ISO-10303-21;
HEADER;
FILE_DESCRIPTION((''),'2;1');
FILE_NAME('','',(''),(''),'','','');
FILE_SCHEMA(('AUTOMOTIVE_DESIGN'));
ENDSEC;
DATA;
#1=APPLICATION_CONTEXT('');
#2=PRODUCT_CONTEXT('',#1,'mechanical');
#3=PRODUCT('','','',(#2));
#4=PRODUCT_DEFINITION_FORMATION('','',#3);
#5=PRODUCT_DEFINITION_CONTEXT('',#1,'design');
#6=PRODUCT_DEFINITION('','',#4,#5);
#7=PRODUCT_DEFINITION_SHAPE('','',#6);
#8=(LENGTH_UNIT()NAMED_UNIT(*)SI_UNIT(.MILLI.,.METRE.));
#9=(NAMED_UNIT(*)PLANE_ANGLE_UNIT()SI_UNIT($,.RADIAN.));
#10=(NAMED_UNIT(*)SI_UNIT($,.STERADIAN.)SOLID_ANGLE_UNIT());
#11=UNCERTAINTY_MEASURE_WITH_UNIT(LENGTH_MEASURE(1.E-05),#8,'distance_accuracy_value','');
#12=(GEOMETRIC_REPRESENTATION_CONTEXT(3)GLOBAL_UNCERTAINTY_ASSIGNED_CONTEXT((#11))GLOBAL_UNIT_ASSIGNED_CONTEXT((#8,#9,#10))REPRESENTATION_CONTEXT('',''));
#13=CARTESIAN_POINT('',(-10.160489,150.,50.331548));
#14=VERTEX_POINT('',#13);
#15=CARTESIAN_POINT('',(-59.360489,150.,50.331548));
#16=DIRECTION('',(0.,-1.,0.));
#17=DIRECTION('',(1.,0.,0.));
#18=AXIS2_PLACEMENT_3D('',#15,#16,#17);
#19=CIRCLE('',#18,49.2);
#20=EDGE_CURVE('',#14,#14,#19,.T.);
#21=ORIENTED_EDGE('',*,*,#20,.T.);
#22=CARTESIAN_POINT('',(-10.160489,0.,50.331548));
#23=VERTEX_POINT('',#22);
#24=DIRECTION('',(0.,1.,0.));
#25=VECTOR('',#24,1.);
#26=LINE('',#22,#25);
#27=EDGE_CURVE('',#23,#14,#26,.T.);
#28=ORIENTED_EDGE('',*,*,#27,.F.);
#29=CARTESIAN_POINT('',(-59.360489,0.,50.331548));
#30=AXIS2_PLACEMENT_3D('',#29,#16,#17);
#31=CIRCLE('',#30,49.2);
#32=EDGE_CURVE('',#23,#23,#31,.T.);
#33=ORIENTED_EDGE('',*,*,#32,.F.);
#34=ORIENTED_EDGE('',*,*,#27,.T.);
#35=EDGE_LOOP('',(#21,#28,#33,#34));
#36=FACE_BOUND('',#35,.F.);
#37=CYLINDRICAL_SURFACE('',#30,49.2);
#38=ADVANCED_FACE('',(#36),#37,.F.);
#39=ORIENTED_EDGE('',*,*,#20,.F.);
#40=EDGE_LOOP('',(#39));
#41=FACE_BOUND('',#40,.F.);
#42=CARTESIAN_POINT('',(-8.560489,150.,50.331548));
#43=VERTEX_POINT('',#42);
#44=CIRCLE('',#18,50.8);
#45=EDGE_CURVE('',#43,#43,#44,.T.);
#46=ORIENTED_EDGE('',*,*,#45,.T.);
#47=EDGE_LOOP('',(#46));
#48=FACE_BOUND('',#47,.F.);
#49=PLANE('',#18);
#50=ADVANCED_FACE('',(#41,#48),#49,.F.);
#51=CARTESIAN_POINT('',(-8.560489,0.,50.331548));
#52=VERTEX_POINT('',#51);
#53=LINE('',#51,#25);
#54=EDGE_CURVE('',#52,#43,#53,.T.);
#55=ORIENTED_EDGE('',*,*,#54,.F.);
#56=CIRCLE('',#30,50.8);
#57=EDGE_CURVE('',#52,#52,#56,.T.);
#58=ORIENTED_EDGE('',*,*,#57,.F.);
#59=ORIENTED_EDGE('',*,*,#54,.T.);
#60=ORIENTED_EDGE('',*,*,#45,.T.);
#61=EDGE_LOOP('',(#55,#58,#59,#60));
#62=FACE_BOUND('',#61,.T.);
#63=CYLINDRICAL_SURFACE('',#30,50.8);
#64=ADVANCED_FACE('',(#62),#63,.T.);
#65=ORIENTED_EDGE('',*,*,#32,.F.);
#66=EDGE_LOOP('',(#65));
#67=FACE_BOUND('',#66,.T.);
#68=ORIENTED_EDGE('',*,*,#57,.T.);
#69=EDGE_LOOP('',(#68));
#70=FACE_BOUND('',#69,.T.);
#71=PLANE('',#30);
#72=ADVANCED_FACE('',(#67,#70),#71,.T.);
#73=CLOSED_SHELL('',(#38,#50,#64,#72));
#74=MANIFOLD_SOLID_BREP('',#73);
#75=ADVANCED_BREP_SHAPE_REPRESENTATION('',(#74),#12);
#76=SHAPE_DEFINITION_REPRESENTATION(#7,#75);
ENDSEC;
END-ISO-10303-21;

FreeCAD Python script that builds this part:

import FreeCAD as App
import Part
import Sketcher

V = App.Vector

doc = App.newDocument("Part")
body = doc.addObject("PartDesign::Body", "Body")

# Sketch on XZ plane
sketch1 = doc.addObject("Sketcher::SketchObject", "Sketch")
body.addObject(sketch1)
sketch1.AttachmentSupport = (doc.XZ_Plane, [""])
sketch1.MapMode = "FlatFace"
sketch1.addGeometry(Part.Circle(V(-59, 50, 0), V(0, 0, 1), 51), False)
sketch1.addGeometry(Part.Circle(V(-59, 50, 0), V(0, 0, 1), 49), False)
sketch1.addConstraint(Sketcher.Constraint("Coincident", 1, 3, 0, 3))
sketch1.addConstraint(Sketcher.Constraint("Diameter", 0, 101.6))
sketch1.addConstraint(Sketcher.Constraint("Diameter", 1, 98.4))
sketch1.addConstraint(Sketcher.Constraint("DistanceX", 0, 3, -1, 1, 59.360489))
sketch1.addConstraint(Sketcher.Constraint("DistanceY", -1, 1, 0, 3, 50.331548))
pad1 = doc.addObject("PartDesign::Pad", "Pad")
body.addObject(pad1)
pad1.Profile = sketch1
pad1.Length = 150
pad1.Reversed = True

doc.recompute()
